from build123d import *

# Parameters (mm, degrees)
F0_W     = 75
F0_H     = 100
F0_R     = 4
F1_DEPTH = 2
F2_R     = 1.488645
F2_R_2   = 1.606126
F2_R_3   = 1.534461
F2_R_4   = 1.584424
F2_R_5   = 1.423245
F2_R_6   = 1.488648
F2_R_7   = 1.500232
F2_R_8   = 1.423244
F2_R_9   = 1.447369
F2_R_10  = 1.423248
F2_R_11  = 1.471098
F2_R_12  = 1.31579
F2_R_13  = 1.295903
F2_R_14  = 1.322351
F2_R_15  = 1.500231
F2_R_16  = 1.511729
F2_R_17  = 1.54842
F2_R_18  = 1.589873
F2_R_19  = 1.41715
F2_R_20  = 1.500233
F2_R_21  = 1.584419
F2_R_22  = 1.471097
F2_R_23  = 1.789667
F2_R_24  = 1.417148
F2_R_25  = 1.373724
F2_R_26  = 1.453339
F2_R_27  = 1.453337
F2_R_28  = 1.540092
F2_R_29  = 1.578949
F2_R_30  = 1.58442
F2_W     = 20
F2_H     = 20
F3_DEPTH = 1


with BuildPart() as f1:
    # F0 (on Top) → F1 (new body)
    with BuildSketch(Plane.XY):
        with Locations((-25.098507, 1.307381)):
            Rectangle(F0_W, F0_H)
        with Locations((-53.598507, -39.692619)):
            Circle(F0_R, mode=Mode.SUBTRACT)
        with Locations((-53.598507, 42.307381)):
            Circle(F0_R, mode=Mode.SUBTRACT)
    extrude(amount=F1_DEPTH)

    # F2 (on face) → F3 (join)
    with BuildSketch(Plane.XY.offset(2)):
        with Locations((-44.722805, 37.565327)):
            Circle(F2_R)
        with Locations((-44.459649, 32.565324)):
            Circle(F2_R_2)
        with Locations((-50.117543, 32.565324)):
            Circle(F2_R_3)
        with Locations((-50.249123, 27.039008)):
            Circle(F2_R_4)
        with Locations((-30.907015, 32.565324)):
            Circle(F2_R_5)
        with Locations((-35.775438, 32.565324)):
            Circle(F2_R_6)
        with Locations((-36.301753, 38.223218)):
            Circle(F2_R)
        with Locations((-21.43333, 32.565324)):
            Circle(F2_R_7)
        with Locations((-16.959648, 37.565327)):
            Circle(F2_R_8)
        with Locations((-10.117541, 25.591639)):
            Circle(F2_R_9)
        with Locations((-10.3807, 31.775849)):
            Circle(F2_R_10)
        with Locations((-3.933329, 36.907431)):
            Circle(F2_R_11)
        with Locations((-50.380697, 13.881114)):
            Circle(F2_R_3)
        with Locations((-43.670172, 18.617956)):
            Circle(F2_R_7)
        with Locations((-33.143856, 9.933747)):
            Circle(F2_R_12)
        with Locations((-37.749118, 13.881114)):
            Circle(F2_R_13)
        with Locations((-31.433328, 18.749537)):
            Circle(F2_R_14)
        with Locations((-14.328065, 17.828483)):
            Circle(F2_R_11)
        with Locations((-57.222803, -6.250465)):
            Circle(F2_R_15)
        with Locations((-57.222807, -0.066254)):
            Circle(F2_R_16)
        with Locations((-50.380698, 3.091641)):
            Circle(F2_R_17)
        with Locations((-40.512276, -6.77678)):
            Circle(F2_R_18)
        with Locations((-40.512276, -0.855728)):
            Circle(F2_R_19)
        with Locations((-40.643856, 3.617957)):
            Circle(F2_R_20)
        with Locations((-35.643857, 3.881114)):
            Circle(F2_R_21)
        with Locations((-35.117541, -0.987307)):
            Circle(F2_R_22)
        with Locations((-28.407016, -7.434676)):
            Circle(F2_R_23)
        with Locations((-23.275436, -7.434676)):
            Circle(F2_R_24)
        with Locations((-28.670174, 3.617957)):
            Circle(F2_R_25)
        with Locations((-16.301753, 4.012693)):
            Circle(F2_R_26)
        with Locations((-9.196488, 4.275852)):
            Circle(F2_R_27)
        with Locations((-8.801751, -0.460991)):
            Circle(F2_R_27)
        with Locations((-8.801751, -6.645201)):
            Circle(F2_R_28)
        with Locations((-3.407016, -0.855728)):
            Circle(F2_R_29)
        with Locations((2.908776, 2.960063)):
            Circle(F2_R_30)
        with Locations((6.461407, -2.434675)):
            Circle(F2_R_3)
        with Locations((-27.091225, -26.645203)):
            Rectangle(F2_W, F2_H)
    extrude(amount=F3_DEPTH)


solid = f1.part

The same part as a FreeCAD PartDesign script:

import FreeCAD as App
import Part
import Sketcher
from FreeCAD import Vector
Q = App.Units.Quantity

doc = App.newDocument("Part")
body = doc.addObject("PartDesign::Body", "Body")

sketch1 = body.newObject("Sketcher::SketchObject", "Sketch")
sketch1.AttachmentSupport = (doc.getObject("XY_Plane"), [""])
sketch1.MapMode = "FlatFace"
sketch1.addGeometry(Part.LineSegment(Vector(-62.6, 51.3, 0), Vector(-62.6, -48.7, 0)), False)
sketch1.addGeometry(Part.LineSegment(Vector(-62.6, -48.7, 0), Vector(12.4, -48.7, 0)), False)
sketch1.addGeometry(Part.LineSegment(Vector(12.4, -48.7, 0), Vector(12.4, 51.3, 0)), False)
sketch1.addGeometry(Part.LineSegment(Vector(12.4, 51.3, 0), Vector(-62.6, 51.3, 0)), False)
sketch1.addGeometry(Part.Circle(Vector(-53.6, -39.7, 0), Vector(0, 0, 1), 4), False)
sketch1.addGeometry(Part.Circle(Vector(-53.6, 42.3, 0), Vector(0, 0, 1), 4), False)
sketch1.addConstraint(Sketcher.Constraint("Coincident", 0, 2, 1, 1))
sketch1.addConstraint(Sketcher.Constraint("Coincident", 1, 2, 2, 1))
sketch1.addConstraint(Sketcher.Constraint("Coincident", 2, 2, 3, 1))
sketch1.addConstraint(Sketcher.Constraint("Coincident", 3, 2, 0, 1))
sketch1.addConstraint(Sketcher.Constraint("Vertical", 0))
sketch1.addConstraint(Sketcher.Constraint("Horizontal", 1))
sketch1.addConstraint(Sketcher.Constraint("Vertical", 2))
sketch1.addConstraint(Sketcher.Constraint("Horizontal", 3))
sketch1.addConstraint(Sketcher.Constraint("Equal", 4, 5))
sketch1.addConstraint(Sketcher.Constraint("Vertical", 4, 3, 5, 3))
sketch1.addConstraint(Sketcher.Constraint("Diameter", 4, Q("8 mm")))
sketch1.addConstraint(Sketcher.Constraint("DistanceX", 1, 1, 1, 2, Q("75 mm")))
sketch1.addConstraint(Sketcher.Constraint("DistanceY", 0, 2, 0, 1, Q("100 mm")))
sketch1.addConstraint(Sketcher.Constraint("DistanceY", 4, 3, 5, 3, Q("82 mm")))
sketch1.addConstraint(Sketcher.Constraint("DistanceX", 0, 2, 4, 3, Q("9 mm")))
sketch1.addConstraint(Sketcher.Constraint("DistanceY", 0, 2, 4, 3, Q("9 mm")))
sketch1.addConstraint(Sketcher.Constraint("DistanceY", 4, 3, -1, 1, Q("39.692619 mm")))
sketch1.addConstraint(Sketcher.Constraint("DistanceX", 4, 3, -1, 1, Q("53.598507 mm")))
pad1 = body.newObject("PartDesign::Pad", "Pad")
pad1.Profile = sketch1
pad1.Length = 2

sketch2 = body.newObject("Sketcher::SketchObject", "Sketch001")
sketch2.AttachmentSupport = (doc.getObject("XY_Plane"), [""])
sketch2.MapMode = "FlatFace"
sketch2.AttachmentOffset = App.Placement(Vector(0, 0, 2), App.Rotation())
sketch2.addGeometry(Part.Circle(Vector(-44.7, 37.6, 0), Vector(0, 0, 1), 1.5), False)
sketch2.addGeometry(Part.Circle(Vector(-44.5, 32.6, 0), Vector(0, 0, 1), 1.6), False)
sketch2.addGeometry(Part.Circle(Vector(-50.1, 32.6, 0), Vector(0, 0, 1), 1.5), False)
sketch2.addGeometry(Part.Circle(Vector(-50.2, 27, 0), Vector(0, 0, 1), 1.6), False)
sketch2.addGeometry(Part.Circle(Vector(-30.9, 32.6, 0), Vector(0, 0, 1), 1.4), False)
sketch2.addGeometry(Part.Circle(Vector(-35.8, 32.6, 0), Vector(0, 0, 1), 1.5), False)
sketch2.addGeometry(Part.Circle(Vector(-36.3, 38.2, 0), Vector(0, 0, 1), 1.5), False)
sketch2.addGeometry(Part.Circle(Vector(-21.4, 32.6, 0), Vector(0, 0, 1), 1.5), False)
sketch2.addGeometry(Part.Circle(Vector(-17, 37.6, 0), Vector(0, 0, 1), 1.4), False)
sketch2.addGeometry(Part.Circle(Vector(-10.1, 25.6, 0), Vector(0, 0, 1), 1.4), False)
sketch2.addGeometry(Part.Circle(Vector(-10.4, 31.8, 0), Vector(0, 0, 1), 1.4), False)
sketch2.addGeometry(Part.Circle(Vector(-3.9, 36.9, 0), Vector(0, 0, 1), 1.5), False)
sketch2.addGeometry(Part.Circle(Vector(-50.4, 13.9, 0), Vector(0, 0, 1), 1.5), False)
sketch2.addGeometry(Part.Circle(Vector(-43.7, 18.6, 0), Vector(0, 0, 1), 1.5), False)
sketch2.addGeometry(Part.Circle(Vector(-33.1, 9.9, 0), Vector(0, 0, 1), 1.3), False)
sketch2.addGeometry(Part.Circle(Vector(-37.7, 13.9, 0), Vector(0, 0, 1), 1.3), False)
sketch2.addGeometry(Part.Circle(Vector(-31.4, 18.7, 0), Vector(0, 0, 1), 1.3), False)
sketch2.addGeometry(Part.Circle(Vector(-14.3, 17.8, 0), Vector(0, 0, 1), 1.5), False)
sketch2.addGeometry(Part.Circle(Vector(-57.2, -6.3, 0), Vector(0, 0, 1), 1.5), False)
sketch2.addGeometry(Part.Circle(Vector(-57.2, -0.1, 0), Vector(0, 0, 1), 1.5), False)
sketch2.addGeometry(Part.Circle(Vector(-50.4, 3.1, 0), Vector(0, 0, 1), 1.5), False)
sketch2.addGeometry(Part.Circle(Vector(-40.5, -6.8, 0), Vector(0, 0, 1), 1.6), False)
sketch2.addGeometry(Part.Circle(Vector(-40.5, -0.9, 0), Vector(0, 0, 1), 1.4), False)
sketch2.addGeometry(Part.Circle(Vector(-40.6, 3.6, 0), Vector(0, 0, 1), 1.5), False)
sketch2.addGeometry(Part.Circle(Vector(-35.6, 3.9, 0), Vector(0, 0, 1), 1.6), False)
sketch2.addGeometry(Part.Circle(Vector(-35.1, -1, 0), Vector(0, 0, 1), 1.5), False)
sketch2.addGeometry(Part.Circle(Vector(-28.4, -7.4, 0), Vector(0, 0, 1), 1.8), False)
sketch2.addGeometry(Part.Circle(Vector(-23.3, -7.4, 0), Vector(0, 0, 1), 1.4), False)
sketch2.addGeometry(Part.Circle(Vector(-28.7, 3.6, 0), Vector(0, 0, 1), 1.4), False)
sketch2.addGeometry(Part.Circle(Vector(-16.3, 4, 0), Vector(0, 0, 1), 1.5), False)
sketch2.addGeometry(Part.Circle(Vector(-9.2, 4.3, 0), Vector(0, 0, 1), 1.5), False)
sketch2.addGeometry(Part.Circle(Vector(-8.8, -0.5, 0), Vector(0, 0, 1), 1.5), False)
sketch2.addGeometry(Part.Circle(Vector(-8.8, -6.6, 0), Vector(0, 0, 1), 1.5), False)
sketch2.addGeometry(Part.Circle(Vector(-3.4, -0.9, 0), Vector(0, 0, 1), 1.6), False)
sketch2.addGeometry(Part.Circle(Vector(2.9, 3, 0), Vector(0, 0, 1), 1.6), False)
sketch2.addGeometry(Part.Circle(Vector(6.5, -2.4, 0), Vector(0, 0, 1), 1.5), False)
sketch2.addGeometry(Part.LineSegment(Vector(-37.1, -16.6, 0), Vector(-37.1, -36.6, 0)), False)
sketch2.addGeometry(Part.LineSegment(Vector(-37.1, -36.6, 0), Vector(-17.1, -36.6, 0)), False)
sketch2.addGeometry(Part.LineSegment(Vector(-17.1, -36.6, 0), Vector(-17.1, -16.6, 0)), False)
sketch2.addGeometry(Part.LineSegment(Vector(-17.1, -16.6, 0), Vector(-37.1, -16.6, 0)), False)
sketch2.addConstraint(Sketcher.Constraint("Coincident", 36, 2, 37, 1))
sketch2.addConstraint(Sketcher.Constraint("Coincident", 37, 2, 38, 1))
sketch2.addConstraint(Sketcher.Constraint("Coincident", 38, 2, 39, 1))
sketch2.addConstraint(Sketcher.Constraint("Coincident", 39, 2, 36, 1))
sketch2.addConstraint(Sketcher.Constraint("Vertical", 36))
sketch2.addConstraint(Sketcher.Constraint("Horizontal", 37))
sketch2.addConstraint(Sketcher.Constraint("Vertical", 38))
sketch2.addConstraint(Sketcher.Constraint("Horizontal", 39))
sketch2.addConstraint(Sketcher.Constraint("Equal", 0, 6))
sketch2.addConstraint(Sketcher.Constraint("Equal", 4, 8))
sketch2.addConstraint(Sketcher.Constraint("Equal", 2, 12))
sketch2.addConstraint(Sketcher.Constraint("Equal", 7, 13))
sketch2.addConstraint(Sketcher.Constraint("Equal", 11, 17))
sketch2.addConstraint(Sketcher.Constraint("Equal", 13, 18))
sketch2.addConstraint(Sketcher.Constraint("Equal", 18, 23))
sketch2.addConstraint(Sketcher.Constraint("Equal", 17, 25))
sketch2.addConstraint(Sketcher.Constraint("Equal", 22, 27))
sketch2.addConstraint(Sketcher.Constraint("Equal", 29, 30))
sketch2.addConstraint(Sketcher.Constraint("Equal", 30, 31))
sketch2.addConstraint(Sketcher.Constraint("Equal", 24, 34))
sketch2.addConstraint(Sketcher.Constraint("Equal", 12, 35))
sketch2.addConstraint(Sketcher.Constraint("Horizontal", 1, 3, 2, 3))
sketch2.addConstraint(Sketcher.Constraint("Horizontal", 2, 3, 4, 3))
sketch2.addConstraint(Sketcher.Constraint("Horizontal", 4, 3, 5, 3))
sketch2.addConstraint(Sketcher.Constraint("Horizontal", 5, 3, 7, 3))
sketch2.addConstraint(Sketcher.Constraint("Horizontal", 0, 3, 8, 3))
sketch2.addConstraint(Sketcher.Constraint("Horizontal", 12, 3, 15, 3))
sketch2.addConstraint(Sketcher.Constraint("Horizontal", 26, 3, 27, 3))
sketch2.addConstraint(Sketcher.Constraint("Horizontal", 23, 3, 28, 3))
sketch2.addConstraint(Sketcher.Constraint("Horizontal", 22, 3, 33, 3))
sketch2.addConstraint(Sketcher.Constraint("Vertical", 12, 3, 20, 3))
sketch2.addConstraint(Sketcher.Constraint("Vertical", 21, 3, 22, 3))
sketch2.addConstraint(Sketcher.Constraint("Vertical", 31, 3, 32, 3))
sketch2.addConstraint(Sketcher.Constraint("Equal", 39, 36))
sketch2.addConstraint(Sketcher.Constraint("DistanceX", 37, 1, 37, 2, Q("20 mm")))
sketch2.addConstraint(Sketcher.Constraint("DistanceY", 19, 3, 14, 3, Q("10.000001 mm")))
sketch2.addConstraint(Sketcher.Constraint("DistanceX", 23, 3, 24, 3, Q("4.999999 mm")))
sketch2.addConstraint(Sketcher.Constraint("DistanceY", 24, 3, 15, 3, Q("10 mm")))
sketch2.addConstraint(Sketcher.Constraint("DistanceY", 38, 2, 32, 3, Q("10.000002 mm")))
sketch2.addConstraint(Sketcher.Constraint("Diameter", 22, Q("2.8343 mm")))
sketch2.addConstraint(Sketcher.Constraint("DistanceX", 7, 3, 11, 3, Q("17.500001 mm")))
sketch2.addConstraint(Sketcher.Constraint("DistanceX", 23, 3, 14, 3, Q("7.5 mm")))
sketch2.addConstraint(Sketcher.Constraint("Diameter", 0, Q("2.97729 mm")))
sketch2.addConstraint(Sketcher.Constraint("Diameter", 1, Q("3.212252 mm")))
sketch2.addConstraint(Sketcher.Constraint("Diameter", 3, Q("3.168848 mm")))
sketch2.addConstraint(Sketcher.Constraint("Diameter", 4, Q("2.84649 mm")))
sketch2.addConstraint(Sketcher.Constraint("Diameter", 14, Q("2.63158 mm")))
sketch2.addConstraint(Sketcher.Constraint("Diameter", 19, Q("3.023458 mm")))
sketch2.addConstraint(Sketcher.Constraint("Diameter", 20, Q("3.09684 mm")))
sketch2.addConstraint(Sketcher.Constraint("Diameter", 24, Q("3.168838 mm")))
sketch2.addConstraint(Sketcher.Constraint("Diameter", 2, Q("3.068922 mm")))
sketch2.addConstraint(Sketcher.Constraint("Diameter", 5, Q("2.977296 mm")))
sketch2.addConstraint(Sketcher.Constraint("Diameter", 7, Q("3.000464 mm")))
sketch2.addConstraint(Sketcher.Constraint("Diameter", 9, Q("2.894738 mm")))
sketch2.addConstraint(Sketcher.Constraint("Diameter", 10, Q("2.846496 mm")))
sketch2.addConstraint(Sketcher.Constraint("Diameter", 11, Q("2.942196 mm")))
sketch2.addConstraint(Sketcher.Constraint("Diameter", 15, Q("2.591806 mm")))
sketch2.addConstraint(Sketcher.Constraint("Diameter", 16, Q("2.644702 mm")))
sketch2.addConstraint(Sketcher.Constraint("Diameter", 21, Q("3.179746 mm")))
sketch2.addConstraint(Sketcher.Constraint("Diameter", 26, Q("3.579334 mm")))
sketch2.addConstraint(Sketcher.Constraint("Diameter", 28, Q("2.747448 mm")))
sketch2.addConstraint(Sketcher.Constraint("Diameter", 29, Q("2.906678 mm")))
sketch2.addConstraint(Sketcher.Constraint("Diameter", 32, Q("3.080184 mm")))
sketch2.addConstraint(Sketcher.Constraint("Diameter", 33, Q("3.157898 mm")))
sketch2.addConstraint(Sketcher.Constraint("DistanceX", 10, 3, -1, 1, Q("10.3807 mm")))
sketch2.addConstraint(Sketcher.Constraint("DistanceX", 20, 3, -1, 1, Q("50.380698 mm")))
sketch2.addConstraint(Sketcher.Constraint("DistanceY", 32, 3, -1, 1, Q("6.645201 mm")))
sketch2.addConstraint(Sketcher.Constraint("DistanceX", 1, 3, -1, 1, Q("44.459649 mm")))
sketch2.addConstraint(Sketcher.Constraint("DistanceY", -1, 1, 6, 3, Q("38.223218 mm")))
sketch2.addConstraint(Sketcher.Constraint("DistanceX", 7, 3, -1, 1, Q("21.43333 mm")))
sketch2.addConstraint(Sketcher.Constraint("DistanceX", 8, 3, -1, 1, Q("16.959648 mm")))
sketch2.addConstraint(Sketcher.Constraint("DistanceX", 9, 3, -1, 1, Q("10.117541 mm")))
sketch2.addConstraint(Sketcher.Constraint("DistanceY", -1, 1, 9, 3, Q("25.591639 mm")))
sketch2.addConstraint(Sketcher.Constraint("DistanceY", -1, 1, 10, 3, Q("31.775849 mm")))
sketch2.addConstraint(Sketcher.Constraint("DistanceY", -1, 1, 11, 3, Q("36.907431 mm")))
sketch2.addConstraint(Sketcher.Constraint("DistanceX", 15, 3, -1, 1, Q("37.749118 mm")))
sketch2.addConstraint(Sketcher.Constraint("DistanceY", -1, 1, 20, 3, Q("3.091641 mm")))
sketch2.addConstraint(Sketcher.Constraint("DistanceY", 21, 3, -1, 1, Q("6.77678 mm")))
sketch2.addConstraint(Sketcher.Constraint("DistanceY", 22, 3, -1, 1, Q("0.855728 mm")))
sketch2.addConstraint(Sketcher.Constraint("DistanceX", 25, 3, -1, 1, Q("35.117541 mm")))
sketch2.addConstraint(Sketcher.Constraint("DistanceX", 31, 3, -1, 1, Q("8.801751 mm")))
sketch2.addConstraint(Sketcher.Constraint("DistanceY", 31, 3, -1, 1, Q("0.460991 mm")))
sketch2.addConstraint(Sketcher.Constraint("DistanceX", 3, 3, 2, 3, Q("0.13158 mm")))
sketch2.addConstraint(Sketcher.Constraint("DistanceY", 3, 3, 0, 3, Q("10.526319 mm")))
sketch2.addConstraint(Sketcher.Constraint("DistanceX", 0, 3, 4, 3, Q("13.81579 mm")))
sketch2.addConstraint(Sketcher.Constraint("DistanceX", 1, 3, 5, 3, Q("8.684211 mm")))
sketch2.addConstraint(Sketcher.Constraint("DistanceY", 0, 3, 6, 3, Q("0.657891 mm")))
sketch2.addConstraint(Sketcher.Constraint("DistanceX", 2, 3, 6, 3, Q("13.81579 mm")))
sketch2.addConstraint(Sketcher.Constraint("DistanceX", 6, 3, 9, 3, Q("26.184212 mm")))
sketch2.addConstraint(Sketcher.Constraint("DistanceY", 12, 3, 2, 3, Q("18.68421 mm")))
sketch2.addConstraint(Sketcher.Constraint("DistanceX", 12, 3, 0, 3, Q("5.657892 mm")))
sketch2.addConstraint(Sketcher.Constraint("DistanceY", 12, 3, 13, 3, Q("4.736842 mm")))
sketch2.addConstraint(Sketcher.Constraint("DistanceX", 3, 3, 13, 3, Q("6.578951 mm")))
sketch2.addConstraint(Sketcher.Constraint("DistanceY", 14, 3, 13, 3, Q("8.684209 mm")))
sketch2.addConstraint(Sketcher.Constraint("DistanceX", 12, 3, 14, 3, Q("17.236841 mm")))
sketch2.addConstraint(Sketcher.Constraint("DistanceY", 14, 3, 3, 3, Q("17.105261 mm")))
sketch2.addConstraint(Sketcher.Constraint("DistanceX", 15, 3, 16, 3, Q("6.31579 mm")))
sketch2.addConstraint(Sketcher.Constraint("DistanceY", 14, 3, 16, 3, Q("8.81579 mm")))
sketch2.addConstraint(Sketcher.Constraint("DistanceY", 17, 3, 7, 3, Q("14.736841 mm")))
sketch2.addConstraint(Sketcher.Constraint("DistanceY", 18, 3, 12, 3, Q("20.131579 mm")))
sketch2.addConstraint(Sketcher.Constraint("DistanceX", 18, 3, 13, 3, Q("13.552631 mm")))
sketch2.addConstraint(Sketcher.Constraint("DistanceX", 19, 3, 12, 3, Q("6.84211 mm")))
sketch2.addConstraint(Sketcher.Constraint("DistanceX", 19, 3, 21, 3, Q("16.710531 mm")))
sketch2.addConstraint(Sketcher.Constraint("DistanceY", 23, 3, 14, 3, Q("6.31579 mm")))
sketch2.addConstraint(Sketcher.Constraint("DistanceY", 25, 3, 24, 3, Q("4.868421 mm")))
sketch2.addConstraint(Sketcher.Constraint("DistanceY", 26, 3, 25, 3, Q("6.447369 mm")))
sketch2.addConstraint(Sketcher.Constraint("DistanceX", 21, 3, 26, 3, Q("12.10526 mm")))
sketch2.addConstraint(Sketcher.Constraint("DistanceX", 26, 3, 27, 3, Q("5.13158 mm")))
sketch2.addConstraint(Sketcher.Constraint("DistanceX", 28, 3, 26, 3, Q("0.263158 mm")))
sketch2.addConstraint(Sketcher.Constraint("DistanceX", 28, 3, 29, 3, Q("12.368421 mm")))
sketch2.addConstraint(Sketcher.Constraint("DistanceY", 27, 3, 29, 3, Q("11.447369 mm")))
sketch2.addConstraint(Sketcher.Constraint("DistanceX", 29, 3, 17, 3, Q("1.973688 mm")))
sketch2.addConstraint(Sketcher.Constraint("DistanceY", 29, 3, 30, 3, Q("0.263159 mm")))
sketch2.addConstraint(Sketcher.Constraint("DistanceX", 27, 3, 33, 3, Q("19.86842 mm")))
sketch2.addConstraint(Sketcher.Constraint("DistanceY", 33, 3, 34, 3, Q("3.815791 mm")))
sketch2.addConstraint(Sketcher.Constraint("DistanceX", 29, 3, 34, 3, Q("19.210529 mm")))
sketch2.addConstraint(Sketcher.Constraint("DistanceX", 34, 3, 35, 3, Q("3.552631 mm")))
sketch2.addConstraint(Sketcher.Constraint("DistanceY", 35, 3, 34, 3, Q("5.394738 mm")))
sketch2.addConstraint(Sketcher.Constraint("DistanceX", 21, 3, 36, 2, Q("3.421051 mm")))
sketch2.addConstraint(Sketcher.Constraint("DistanceX", 30, 3, -1, 1, Q("9.196488 mm")))
pad2 = body.newObject("PartDesign::Pad", "Pad001")
pad2.Profile = sketch2
pad2.Length = 1

doc.recompute()
